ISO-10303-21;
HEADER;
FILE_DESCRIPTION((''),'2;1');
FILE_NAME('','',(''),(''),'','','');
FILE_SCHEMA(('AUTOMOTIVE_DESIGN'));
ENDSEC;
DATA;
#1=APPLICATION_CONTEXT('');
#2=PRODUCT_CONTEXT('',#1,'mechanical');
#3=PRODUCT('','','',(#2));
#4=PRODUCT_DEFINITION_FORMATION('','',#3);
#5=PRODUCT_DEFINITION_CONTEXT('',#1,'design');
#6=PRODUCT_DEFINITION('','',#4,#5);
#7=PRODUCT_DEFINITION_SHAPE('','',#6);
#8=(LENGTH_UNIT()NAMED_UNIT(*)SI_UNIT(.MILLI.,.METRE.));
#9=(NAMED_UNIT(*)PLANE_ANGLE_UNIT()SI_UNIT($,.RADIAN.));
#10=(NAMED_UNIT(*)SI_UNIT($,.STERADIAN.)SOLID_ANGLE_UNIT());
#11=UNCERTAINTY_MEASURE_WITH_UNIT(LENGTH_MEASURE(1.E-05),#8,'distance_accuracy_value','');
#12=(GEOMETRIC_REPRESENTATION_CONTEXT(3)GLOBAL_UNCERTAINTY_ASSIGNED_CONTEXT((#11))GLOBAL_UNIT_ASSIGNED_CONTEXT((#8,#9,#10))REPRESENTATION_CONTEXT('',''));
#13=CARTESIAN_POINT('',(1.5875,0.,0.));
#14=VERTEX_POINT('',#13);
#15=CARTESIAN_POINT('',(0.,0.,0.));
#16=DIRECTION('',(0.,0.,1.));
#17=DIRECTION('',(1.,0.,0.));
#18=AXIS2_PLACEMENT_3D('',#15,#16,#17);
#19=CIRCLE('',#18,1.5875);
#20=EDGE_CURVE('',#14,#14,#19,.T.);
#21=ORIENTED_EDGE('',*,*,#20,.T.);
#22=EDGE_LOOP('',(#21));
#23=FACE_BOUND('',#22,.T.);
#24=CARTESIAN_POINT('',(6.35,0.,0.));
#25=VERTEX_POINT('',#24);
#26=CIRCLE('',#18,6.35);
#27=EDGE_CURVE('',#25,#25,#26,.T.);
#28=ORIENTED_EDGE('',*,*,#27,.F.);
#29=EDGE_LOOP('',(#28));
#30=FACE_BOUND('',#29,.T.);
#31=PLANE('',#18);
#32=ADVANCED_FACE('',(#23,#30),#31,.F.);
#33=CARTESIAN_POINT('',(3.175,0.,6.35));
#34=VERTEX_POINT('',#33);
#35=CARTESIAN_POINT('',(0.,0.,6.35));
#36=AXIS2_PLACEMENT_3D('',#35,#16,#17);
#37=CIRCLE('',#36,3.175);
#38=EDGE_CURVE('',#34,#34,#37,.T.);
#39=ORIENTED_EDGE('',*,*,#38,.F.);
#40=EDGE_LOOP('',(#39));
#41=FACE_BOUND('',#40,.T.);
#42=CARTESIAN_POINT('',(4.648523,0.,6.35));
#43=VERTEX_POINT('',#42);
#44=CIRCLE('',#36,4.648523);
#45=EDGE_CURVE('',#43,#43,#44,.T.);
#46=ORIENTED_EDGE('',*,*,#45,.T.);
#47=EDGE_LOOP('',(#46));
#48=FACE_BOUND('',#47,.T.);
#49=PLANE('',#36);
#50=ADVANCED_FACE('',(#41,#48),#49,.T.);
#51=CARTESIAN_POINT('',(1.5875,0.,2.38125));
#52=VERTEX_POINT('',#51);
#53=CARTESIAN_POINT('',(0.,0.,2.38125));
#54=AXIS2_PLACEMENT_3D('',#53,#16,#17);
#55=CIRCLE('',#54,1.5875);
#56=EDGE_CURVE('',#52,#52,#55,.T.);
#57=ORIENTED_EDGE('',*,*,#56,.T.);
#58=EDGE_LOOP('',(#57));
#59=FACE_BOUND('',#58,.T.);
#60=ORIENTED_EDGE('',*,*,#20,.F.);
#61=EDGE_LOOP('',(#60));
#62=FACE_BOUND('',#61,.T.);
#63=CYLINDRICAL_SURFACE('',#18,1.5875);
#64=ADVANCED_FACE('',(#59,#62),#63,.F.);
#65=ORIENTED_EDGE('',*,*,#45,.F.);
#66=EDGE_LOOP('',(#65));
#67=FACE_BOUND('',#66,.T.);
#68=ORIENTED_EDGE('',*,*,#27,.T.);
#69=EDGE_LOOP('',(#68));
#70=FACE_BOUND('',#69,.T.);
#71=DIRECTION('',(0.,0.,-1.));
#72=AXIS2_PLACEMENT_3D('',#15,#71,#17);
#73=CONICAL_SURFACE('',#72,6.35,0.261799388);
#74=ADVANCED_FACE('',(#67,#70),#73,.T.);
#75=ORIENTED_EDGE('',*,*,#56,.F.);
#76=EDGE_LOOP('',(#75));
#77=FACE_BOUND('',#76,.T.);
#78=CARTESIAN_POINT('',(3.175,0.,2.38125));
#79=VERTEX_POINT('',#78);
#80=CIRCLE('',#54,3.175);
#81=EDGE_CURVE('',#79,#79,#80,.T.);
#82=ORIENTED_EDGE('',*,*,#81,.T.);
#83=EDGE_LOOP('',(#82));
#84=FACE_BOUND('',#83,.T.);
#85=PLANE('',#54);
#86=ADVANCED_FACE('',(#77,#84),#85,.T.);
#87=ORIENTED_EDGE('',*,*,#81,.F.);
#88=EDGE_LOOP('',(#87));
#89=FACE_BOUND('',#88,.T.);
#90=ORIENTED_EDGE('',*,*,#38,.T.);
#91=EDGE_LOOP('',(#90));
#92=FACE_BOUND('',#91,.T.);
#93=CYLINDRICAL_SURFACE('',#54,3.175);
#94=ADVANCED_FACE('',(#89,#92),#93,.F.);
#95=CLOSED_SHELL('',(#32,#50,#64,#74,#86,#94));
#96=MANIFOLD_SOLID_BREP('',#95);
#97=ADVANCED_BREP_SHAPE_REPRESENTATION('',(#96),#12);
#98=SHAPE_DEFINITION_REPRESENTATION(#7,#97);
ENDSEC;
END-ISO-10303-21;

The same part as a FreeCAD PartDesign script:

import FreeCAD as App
import Part
import Sketcher
Q = App.Units.Quantity

doc = App.newDocument("Part")
body = doc.addObject("PartDesign::Body", "Body")

# Sketch on XY plane
sketch1 = doc.addObject("Sketcher::SketchObject", "Sketch")
body.addObject(sketch1)
sketch1.AttachmentSupport = (doc.XY_Plane, [""])
sketch1.MapMode = "FlatFace"
sketch1.addGeometry(Part.Circle(App.Vector(0, 0, 0), App.Vector(0, 0, 1), 6), False)
sketch1.addConstraint(Sketcher.Constraint("Coincident", 0, 3, -1, 1))
sketch1.addConstraint(Sketcher.Constraint("Diameter", 0, Q("0.5 in")))
pad1 = doc.addObject("PartDesign::Pad", "Pad")
body.addObject(pad1)
pad1.Profile = sketch1
pad1.Length = Q("0.25 in")
pad1.TaperAngle = -15

# Sketch on XY plane
sketch2 = doc.addObject("Sketcher::SketchObject", "Sketch001")
body.addObject(sketch2)
sketch2.AttachmentSupport = (doc.XY_Plane, [""])
sketch2.MapMode = "FlatFace"
sketch2.AttachmentOffset = App.Placement(App.Vector(0, 0, 0.25 * 25.4), App.Rotation())
sketch2.addGeometry(Part.Circle(App.Vector(0, 0, 0), App.Vector(0, 0, 1), 3.2), False)
sketch2.addConstraint(Sketcher.Constraint("Coincident", 0, 3, -1, 1))
sketch2.addConstraint(Sketcher.Constraint("Diameter", 0, Q("0.25 in")))
pocket1 = doc.addObject("PartDesign::Pocket", "Pocket")
body.addObject(pocket1)
pocket1.Profile = sketch2
pocket1.Length = Q("0.15625 in")

# Sketch on XY plane
sketch3 = doc.addObject("Sketcher::SketchObject", "Sketch002")
body.addObject(sketch3)
sketch3.AttachmentSupport = (doc.XY_Plane, [""])
sketch3.MapMode = "FlatFace"
sketch3.AttachmentOffset = App.Placement(App.Vector(0, 0, 0.09375 * 25.4), App.Rotation())
sketch3.addGeometry(Part.Circle(App.Vector(0, 0, 0), App.Vector(0, 0, 1), 1.6), False)
sketch3.addConstraint(Sketcher.Constraint("Coincident", 0, 3, -1, 1))
sketch3.addConstraint(Sketcher.Constraint("Diameter", 0, Q("0.125 in")))
pocket2 = doc.addObject("PartDesign::Pocket", "Pocket001")
body.addObject(pocket2)
pocket2.Profile = sketch3
pocket2.Type = "ThroughAll"

doc.recompute()
